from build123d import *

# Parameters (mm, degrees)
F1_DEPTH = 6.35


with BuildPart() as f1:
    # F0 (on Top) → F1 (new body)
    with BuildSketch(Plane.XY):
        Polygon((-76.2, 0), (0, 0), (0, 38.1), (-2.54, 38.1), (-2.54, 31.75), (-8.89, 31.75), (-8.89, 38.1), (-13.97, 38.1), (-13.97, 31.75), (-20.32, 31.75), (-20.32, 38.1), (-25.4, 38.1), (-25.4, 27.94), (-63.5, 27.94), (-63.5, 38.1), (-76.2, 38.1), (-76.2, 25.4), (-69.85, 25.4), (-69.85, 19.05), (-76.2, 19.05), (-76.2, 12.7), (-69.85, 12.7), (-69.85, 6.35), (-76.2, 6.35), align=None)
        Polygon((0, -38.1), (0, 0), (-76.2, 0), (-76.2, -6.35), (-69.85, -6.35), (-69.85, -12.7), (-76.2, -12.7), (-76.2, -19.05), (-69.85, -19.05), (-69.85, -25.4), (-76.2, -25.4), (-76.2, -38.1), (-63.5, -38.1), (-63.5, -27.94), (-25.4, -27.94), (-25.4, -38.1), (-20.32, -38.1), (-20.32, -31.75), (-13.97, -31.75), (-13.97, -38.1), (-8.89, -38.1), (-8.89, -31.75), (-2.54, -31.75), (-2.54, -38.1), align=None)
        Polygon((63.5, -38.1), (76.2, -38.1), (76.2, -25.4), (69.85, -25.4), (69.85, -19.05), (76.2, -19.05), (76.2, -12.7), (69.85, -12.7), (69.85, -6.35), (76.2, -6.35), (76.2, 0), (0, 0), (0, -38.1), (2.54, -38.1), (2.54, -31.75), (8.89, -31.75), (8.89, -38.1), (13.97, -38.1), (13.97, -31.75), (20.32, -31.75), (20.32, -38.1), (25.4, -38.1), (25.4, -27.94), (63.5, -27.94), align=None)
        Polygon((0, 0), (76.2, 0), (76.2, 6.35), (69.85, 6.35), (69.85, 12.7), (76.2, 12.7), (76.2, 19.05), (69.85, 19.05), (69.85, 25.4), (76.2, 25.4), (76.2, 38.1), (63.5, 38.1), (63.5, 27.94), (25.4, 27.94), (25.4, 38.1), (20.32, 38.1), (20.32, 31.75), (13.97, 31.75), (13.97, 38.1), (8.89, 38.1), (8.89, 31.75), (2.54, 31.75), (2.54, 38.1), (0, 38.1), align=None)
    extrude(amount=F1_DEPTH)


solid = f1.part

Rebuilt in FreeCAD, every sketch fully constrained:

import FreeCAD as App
import Part
import Sketcher
from FreeCAD import Vector
Q = App.Units.Quantity

doc = App.newDocument("Part")
body = doc.addObject("PartDesign::Body", "Body")

# Sketch on XY plane
sketch1 = doc.addObject("Sketcher::SketchObject", "Sketch")
body.addObject(sketch1)
sketch1.AttachmentSupport = (doc.XY_Plane, [""])
sketch1.MapMode = "FlatFace"
sketch1.addGeometry(Part.LineSegment(Vector(-3, 38, 0), Vector(-3, 32, 0)), False)
sketch1.addGeometry(Part.LineSegment(Vector(-3, 32, 0), Vector(-9, 32, 0)), False)
sketch1.addGeometry(Part.LineSegment(Vector(-9, 32, 0), Vector(-9, 38, 0)), False)
sketch1.addGeometry(Part.LineSegment(Vector(-9, 38, 0), Vector(-14, 38, 0)), False)
sketch1.addGeometry(Part.LineSegment(Vector(-14, 38, 0), Vector(-14, 32, 0)), False)
sketch1.addGeometry(Part.LineSegment(Vector(-14, 32, 0), Vector(-20, 32, 0)), False)
sketch1.addGeometry(Part.LineSegment(Vector(-20, 32, 0), Vector(-20, 38, 0)), False)
sketch1.addGeometry(Part.LineSegment(Vector(-20, 38, 0), Vector(-25, 38, 0)), False)
sketch1.addGeometry(Part.LineSegment(Vector(-25, 38, 0), Vector(-25, 28, 0)), False)
sketch1.addGeometry(Part.LineSegment(Vector(-25, 28, 0), Vector(-64, 28, 0)), False)
sketch1.addGeometry(Part.LineSegment(Vector(-64, 28, 0), Vector(-64, 38, 0)), False)
sketch1.addGeometry(Part.LineSegment(Vector(-64, 38, 0), Vector(-76, 38, 0)), False)
sketch1.addGeometry(Part.LineSegment(Vector(-76, 38, 0), Vector(-76, 25, 0)), False)
sketch1.addGeometry(Part.LineSegment(Vector(-76, 25, 0), Vector(-70, 25, 0)), False)
sketch1.addGeometry(Part.LineSegment(Vector(-70, 25, 0), Vector(-70, 19, 0)), False)
sketch1.addGeometry(Part.LineSegment(Vector(-70, 19, 0), Vector(-76, 19, 0)), False)
sketch1.addGeometry(Part.LineSegment(Vector(-76, 19, 0), Vector(-76, 13, 0)), False)
sketch1.addGeometry(Part.LineSegment(Vector(-76, 13, 0), Vector(-70, 13, 0)), False)
sketch1.addGeometry(Part.LineSegment(Vector(-70, 13, 0), Vector(-70, 6, 0)), False)
sketch1.addGeometry(Part.LineSegment(Vector(-70, 6, 0), Vector(-76, 6, 0)), False)
sketch1.addGeometry(Part.LineSegment(Vector(-76, 6, 0), Vector(-76, -6, 0)), False)
sketch1.addGeometry(Part.LineSegment(Vector(-76, -6, 0), Vector(-70, -6, 0)), False)
sketch1.addGeometry(Part.LineSegment(Vector(-70, -6, 0), Vector(-70, -13, 0)), False)
sketch1.addGeometry(Part.LineSegment(Vector(-70, -13, 0), Vector(-76, -13, 0)), False)
sketch1.addGeometry(Part.LineSegment(Vector(-76, -13, 0), Vector(-76, -19, 0)), False)
sketch1.addGeometry(Part.LineSegment(Vector(-76, -19, 0), Vector(-70, -19, 0)), False)
sketch1.addGeometry(Part.LineSegment(Vector(-70, -19, 0), Vector(-70, -25, 0)), False)
sketch1.addGeometry(Part.LineSegment(Vector(-70, -25, 0), Vector(-76, -25, 0)), False)
sketch1.addGeometry(Part.LineSegment(Vector(-76, -25, 0), Vector(-76, -38, 0)), False)
sketch1.addGeometry(Part.LineSegment(Vector(-76, -38, 0), Vector(-64, -38, 0)), False)
sketch1.addGeometry(Part.LineSegment(Vector(-64, -38, 0), Vector(-64, -28, 0)), False)
sketch1.addGeometry(Part.LineSegment(Vector(-64, -28, 0), Vector(-25, -28, 0)), False)
sketch1.addGeometry(Part.LineSegment(Vector(-25, -28, 0), Vector(-25, -38, 0)), False)
sketch1.addGeometry(Part.LineSegment(Vector(-25, -38, 0), Vector(-20, -38, 0)), False)
sketch1.addGeometry(Part.LineSegment(Vector(-20, -38, 0), Vector(-20, -32, 0)), False)
sketch1.addGeometry(Part.LineSegment(Vector(-20, -32, 0), Vector(-14, -32, 0)), False)
sketch1.addGeometry(Part.LineSegment(Vector(-14, -32, 0), Vector(-14, -38, 0)), False)
sketch1.addGeometry(Part.LineSegment(Vector(-14, -38, 0), Vector(-9, -38, 0)), False)
sketch1.addGeometry(Part.LineSegment(Vector(-9, -38, 0), Vector(-9, -32, 0)), False)
sketch1.addGeometry(Part.LineSegment(Vector(-9, -32, 0), Vector(-3, -32, 0)), False)
sketch1.addGeometry(Part.LineSegment(Vector(-3, -32, 0), Vector(-3, -38, 0)), False)
sketch1.addGeometry(Part.LineSegment(Vector(-3, -38, 0), Vector(3, -38, 0)), False)
sketch1.addGeometry(Part.LineSegment(Vector(3, -38, 0), Vector(3, -32, 0)), False)
sketch1.addGeometry(Part.LineSegment(Vector(3, -32, 0), Vector(9, -32, 0)), False)
sketch1.addGeometry(Part.LineSegment(Vector(9, -32, 0), Vector(9, -38, 0)), False)
sketch1.addGeometry(Part.LineSegment(Vector(9, -38, 0), Vector(14, -38, 0)), False)
sketch1.addGeometry(Part.LineSegment(Vector(14, -38, 0), Vector(14, -32, 0)), False)
sketch1.addGeometry(Part.LineSegment(Vector(14, -32, 0), Vector(20, -32, 0)), False)
sketch1.addGeometry(Part.LineSegment(Vector(20, -32, 0), Vector(20, -38, 0)), False)
sketch1.addGeometry(Part.LineSegment(Vector(20, -38, 0), Vector(25, -38, 0)), False)
sketch1.addGeometry(Part.LineSegment(Vector(25, -38, 0), Vector(25, -28, 0)), False)
sketch1.addGeometry(Part.LineSegment(Vector(25, -28, 0), Vector(64, -28, 0)), False)
sketch1.addGeometry(Part.LineSegment(Vector(64, -28, 0), Vector(64, -38, 0)), False)
sketch1.addGeometry(Part.LineSegment(Vector(64, -38, 0), Vector(76, -38, 0)), False)
sketch1.addGeometry(Part.LineSegment(Vector(76, -38, 0), Vector(76, -25, 0)), False)
sketch1.addGeometry(Part.LineSegment(Vector(76, -25, 0), Vector(70, -25, 0)), False)
sketch1.addGeometry(Part.LineSegment(Vector(70, -25, 0), Vector(70, -19, 0)), False)
sketch1.addGeometry(Part.LineSegment(Vector(70, -19, 0), Vector(76, -19, 0)), False)
sketch1.addGeometry(Part.LineSegment(Vector(76, -19, 0), Vector(76, -13, 0)), False)
sketch1.addGeometry(Part.LineSegment(Vector(76, -13, 0), Vector(70, -13, 0)), False)
sketch1.addGeometry(Part.LineSegment(Vector(70, -13, 0), Vector(70, -6, 0)), False)
sketch1.addGeometry(Part.LineSegment(Vector(70, -6, 0), Vector(76, -6, 0)), False)
sketch1.addGeometry(Part.LineSegment(Vector(76, -6, 0), Vector(76, 6, 0)), False)
sketch1.addGeometry(Part.LineSegment(Vector(76, 6, 0), Vector(70, 6, 0)), False)
sketch1.addGeometry(Part.LineSegment(Vector(70, 6, 0), Vector(70, 13, 0)), False)
sketch1.addGeometry(Part.LineSegment(Vector(70, 13, 0), Vector(76, 13, 0)), False)
sketch1.addGeometry(Part.LineSegment(Vector(76, 13, 0), Vector(76, 19, 0)), False)
sketch1.addGeometry(Part.LineSegment(Vector(76, 19, 0), Vector(70, 19, 0)), False)
sketch1.addGeometry(Part.LineSegment(Vector(70, 19, 0), Vector(70, 25, 0)), False)
sketch1.addGeometry(Part.LineSegment(Vector(70, 25, 0), Vector(76, 25, 0)), False)
sketch1.addGeometry(Part.LineSegment(Vector(76, 25, 0), Vector(76, 38, 0)), False)
sketch1.addGeometry(Part.LineSegment(Vector(76, 38, 0), Vector(64, 38, 0)), False)
sketch1.addGeometry(Part.LineSegment(Vector(64, 38, 0), Vector(64, 28, 0)), False)
sketch1.addGeometry(Part.LineSegment(Vector(64, 28, 0), Vector(25, 28, 0)), False)
sketch1.addGeometry(Part.LineSegment(Vector(25, 28, 0), Vector(25, 38, 0)), False)
sketch1.addGeometry(Part.LineSegment(Vector(25, 38, 0), Vector(20, 38, 0)), False)
sketch1.addGeometry(Part.LineSegment(Vector(20, 38, 0), Vector(20, 32, 0)), False)
sketch1.addGeometry(Part.LineSegment(Vector(20, 32, 0), Vector(14, 32, 0)), False)
sketch1.addGeometry(Part.LineSegment(Vector(14, 32, 0), Vector(14, 38, 0)), False)
sketch1.addGeometry(Part.LineSegment(Vector(14, 38, 0), Vector(9, 38, 0)), False)
sketch1.addGeometry(Part.LineSegment(Vector(9, 38, 0), Vector(9, 32, 0)), False)
sketch1.addGeometry(Part.LineSegment(Vector(9, 32, 0), Vector(3, 32, 0)), False)
sketch1.addGeometry(Part.LineSegment(Vector(3, 32, 0), Vector(3, 38, 0)), False)
sketch1.addGeometry(Part.LineSegment(Vector(3, 38, 0), Vector(-3, 38, 0)), False)
sketch1.addConstraint(Sketcher.Constraint("Coincident", 0, 2, 1, 1))
sketch1.addConstraint(Sketcher.Constraint("Coincident", 1, 2, 2, 1))
sketch1.addConstraint(Sketcher.Constraint("Coincident", 2, 2, 3, 1))
sketch1.addConstraint(Sketcher.Constraint("Coincident", 3, 2, 4, 1))
sketch1.addConstraint(Sketcher.Constraint("Coincident", 4, 2, 5, 1))
sketch1.addConstraint(Sketcher.Constraint("Coincident", 5, 2, 6, 1))
sketch1.addConstraint(Sketcher.Constraint("Coincident", 6, 2, 7, 1))
sketch1.addConstraint(Sketcher.Constraint("Coincident", 7, 2, 8, 1))
sketch1.addConstraint(Sketcher.Constraint("Coincident", 8, 2, 9, 1))
sketch1.addConstraint(Sketcher.Constraint("Coincident", 9, 2, 10, 1))
sketch1.addConstraint(Sketcher.Constraint("Coincident", 10, 2, 11, 1))
sketch1.addConstraint(Sketcher.Constraint("Coincident", 11, 2, 12, 1))
sketch1.addConstraint(Sketcher.Constraint("Coincident", 12, 2, 13, 1))
sketch1.addConstraint(Sketcher.Constraint("Coincident", 13, 2, 14, 1))
sketch1.addConstraint(Sketcher.Constraint("Coincident", 14, 2, 15, 1))
sketch1.addConstraint(Sketcher.Constraint("Coincident", 15, 2, 16, 1))
sketch1.addConstraint(Sketcher.Constraint("Coincident", 16, 2, 17, 1))
sketch1.addConstraint(Sketcher.Constraint("Coincident", 17, 2, 18, 1))
sketch1.addConstraint(Sketcher.Constraint("Coincident", 18, 2, 19, 1))
sketch1.addConstraint(Sketcher.Constraint("Coincident", 19, 2, 20, 1))
sketch1.addConstraint(Sketcher.Constraint("Coincident", 20, 2, 21, 1))
sketch1.addConstraint(Sketcher.Constraint("Coincident", 21, 2, 22, 1))
sketch1.addConstraint(Sketcher.Constraint("Coincident", 22, 2, 23, 1))
sketch1.addConstraint(Sketcher.Constraint("Coincident", 23, 2, 24, 1))
sketch1.addConstraint(Sketcher.Constraint("Coincident", 24, 2, 25, 1))
sketch1.addConstraint(Sketcher.Constraint("Coincident", 25, 2, 26, 1))
sketch1.addConstraint(Sketcher.Constraint("Coincident", 26, 2, 27, 1))
sketch1.addConstraint(Sketcher.Constraint("Coincident", 27, 2, 28, 1))
sketch1.addConstraint(Sketcher.Constraint("Coincident", 28, 2, 29, 1))
sketch1.addConstraint(Sketcher.Constraint("Coincident", 29, 2, 30, 1))
sketch1.addConstraint(Sketcher.Constraint("Coincident", 30, 2, 31, 1))
sketch1.addConstraint(Sketcher.Constraint("Coincident", 31, 2, 32, 1))
sketch1.addConstraint(Sketcher.Constraint("Coincident", 32, 2, 33, 1))
sketch1.addConstraint(Sketcher.Constraint("Coincident", 33, 2, 34, 1))
sketch1.addConstraint(Sketcher.Constraint("Coincident", 34, 2, 35, 1))
sketch1.addConstraint(Sketcher.Constraint("Coincident", 35, 2, 36, 1))
sketch1.addConstraint(Sketcher.Constraint("Coincident", 36, 2, 37, 1))
sketch1.addConstraint(Sketcher.Constraint("Coincident", 37, 2, 38, 1))
sketch1.addConstraint(Sketcher.Constraint("Coincident", 38, 2, 39, 1))
sketch1.addConstraint(Sketcher.Constraint("Coincident", 39, 2, 40, 1))
sketch1.addConstraint(Sketcher.Constraint("Coincident", 40, 2, 41, 1))
sketch1.addConstraint(Sketcher.Constraint("Coincident", 41, 2, 42, 1))
sketch1.addConstraint(Sketcher.Constraint("Coincident", 42, 2, 43, 1))
sketch1.addConstraint(Sketcher.Constraint("Coincident", 43, 2, 44, 1))
sketch1.addConstraint(Sketcher.Constraint("Coincident", 44, 2, 45, 1))
sketch1.addConstraint(Sketcher.Constraint("Coincident", 45, 2, 46, 1))
sketch1.addConstraint(Sketcher.Constraint("Coincident", 46, 2, 47, 1))
sketch1.addConstraint(Sketcher.Constraint("Coincident", 47, 2, 48, 1))
sketch1.addConstraint(Sketcher.Constraint("Coincident", 48, 2, 49, 1))
sketch1.addConstraint(Sketcher.Constraint("Coincident", 49, 2, 50, 1))
sketch1.addConstraint(Sketcher.Constraint("Coincident", 50, 2, 51, 1))
sketch1.addConstraint(Sketcher.Constraint("Coincident", 51, 2, 52, 1))
sketch1.addConstraint(Sketcher.Constraint("Coincident", 52, 2, 53, 1))
sketch1.addConstraint(Sketcher.Constraint("Coincident", 53, 2, 54, 1))
sketch1.addConstraint(Sketcher.Constraint("Coincident", 54, 2, 55, 1))
sketch1.addConstraint(Sketcher.Constraint("Coincident", 55, 2, 56, 1))
sketch1.addConstraint(Sketcher.Constraint("Coincident", 56, 2, 57, 1))
sketch1.addConstraint(Sketcher.Constraint("Coincident", 57, 2, 58, 1))
sketch1.addConstraint(Sketcher.Constraint("Coincident", 58, 2, 59, 1))
sketch1.addConstraint(Sketcher.Constraint("Coincident", 59, 2, 60, 1))
sketch1.addConstraint(Sketcher.Constraint("Coincident", 60, 2, 61, 1))
sketch1.addConstraint(Sketcher.Constraint("Coincident", 61, 2, 62, 1))
sketch1.addConstraint(Sketcher.Constraint("Coincident", 62, 2, 63, 1))
sketch1.addConstraint(Sketcher.Constraint("Coincident", 63, 2, 64, 1))
sketch1.addConstraint(Sketcher.Constraint("Coincident", 64, 2, 65, 1))
sketch1.addConstraint(Sketcher.Constraint("Coincident", 65, 2, 66, 1))
sketch1.addConstraint(Sketcher.Constraint("Coincident", 66, 2, 67, 1))
sketch1.addConstraint(Sketcher.Constraint("Coincident", 67, 2, 68, 1))
sketch1.addConstraint(Sketcher.Constraint("Coincident", 68, 2, 69, 1))
sketch1.addConstraint(Sketcher.Constraint("Coincident", 69, 2, 70, 1))
sketch1.addConstraint(Sketcher.Constraint("Coincident", 70, 2, 71, 1))
sketch1.addConstraint(Sketcher.Constraint("Coincident", 71, 2, 72, 1))
sketch1.addConstraint(Sketcher.Constraint("Coincident", 72, 2, 73, 1))
sketch1.addConstraint(Sketcher.Constraint("Coincident", 73, 2, 74, 1))
sketch1.addConstraint(Sketcher.Constraint("Coincident", 74, 2, 75, 1))
sketch1.addConstraint(Sketcher.Constraint("Coincident", 75, 2, 76, 1))
sketch1.addConstraint(Sketcher.Constraint("Coincident", 76, 2, 77, 1))
sketch1.addConstraint(Sketcher.Constraint("Coincident", 77, 2, 78, 1))
sketch1.addConstraint(Sketcher.Constraint("Coincident", 78, 2, 79, 1))
sketch1.addConstraint(Sketcher.Constraint("Coincident", 79, 2, 80, 1))
sketch1.addConstraint(Sketcher.Constraint("Coincident", 80, 2, 81, 1))
sketch1.addConstraint(Sketcher.Constraint("Coincident", 81, 2, 82, 1))
sketch1.addConstraint(Sketcher.Constraint("Coincident", 82, 2, 83, 1))
sketch1.addConstraint(Sketcher.Constraint("Coincident", 83, 2, 0, 1))
sketch1.addConstraint(Sketcher.Constraint("Vertical", 0))
sketch1.addConstraint(Sketcher.Constraint("Horizontal", 1))
sketch1.addConstraint(Sketcher.Constraint("Vertical", 2))
sketch1.addConstraint(Sketcher.Constraint("Horizontal", 3))
sketch1.addConstraint(Sketcher.Constraint("Vertical", 4))
sketch1.addConstraint(Sketcher.Constraint("Horizontal", 5))
sketch1.addConstraint(Sketcher.Constraint("Vertical", 6))
sketch1.addConstraint(Sketcher.Constraint("Horizontal", 7))
sketch1.addConstraint(Sketcher.Constraint("Vertical", 8))
sketch1.addConstraint(Sketcher.Constraint("Horizontal", 9))
sketch1.addConstraint(Sketcher.Constraint("Vertical", 10))
sketch1.addConstraint(Sketcher.Constraint("Horizontal", 11))
sketch1.addConstraint(Sketcher.Constraint("Vertical", 12))
sketch1.addConstraint(Sketcher.Constraint("Horizontal", 13))
sketch1.addConstraint(Sketcher.Constraint("Vertical", 14))
sketch1.addConstraint(Sketcher.Constraint("Horizontal", 15))
sketch1.addConstraint(Sketcher.Constraint("Vertical", 16))
sketch1.addConstraint(Sketcher.Constraint("Horizontal", 17))
sketch1.addConstraint(Sketcher.Constraint("Vertical", 18))
sketch1.addConstraint(Sketcher.Constraint("Horizontal", 19))
sketch1.addConstraint(Sketcher.Constraint("Vertical", 20))
sketch1.addConstraint(Sketcher.Constraint("Horizontal", 21))
sketch1.addConstraint(Sketcher.Constraint("Vertical", 22))
sketch1.addConstraint(Sketcher.Constraint("Horizontal", 23))
sketch1.addConstraint(Sketcher.Constraint("Vertical", 24))
sketch1.addConstraint(Sketcher.Constraint("Horizontal", 25))
sketch1.addConstraint(Sketcher.Constraint("Vertical", 26))
sketch1.addConstraint(Sketcher.Constraint("Horizontal", 27))
sketch1.addConstraint(Sketcher.Constraint("Vertical", 28))
sketch1.addConstraint(Sketcher.Constraint("Horizontal", 29))
sketch1.addConstraint(Sketcher.Constraint("Vertical", 30))
sketch1.addConstraint(Sketcher.Constraint("Horizontal", 31))
sketch1.addConstraint(Sketcher.Constraint("Vertical", 32))
sketch1.addConstraint(Sketcher.Constraint("Horizontal", 33))
sketch1.addConstraint(Sketcher.Constraint("Vertical", 34))
sketch1.addConstraint(Sketcher.Constraint("Horizontal", 35))
sketch1.addConstraint(Sketcher.Constraint("Vertical", 36))
sketch1.addConstraint(Sketcher.Constraint("Horizontal", 37))
sketch1.addConstraint(Sketcher.Constraint("Vertical", 38))
sketch1.addConstraint(Sketcher.Constraint("Horizontal", 39))
sketch1.addConstraint(Sketcher.Constraint("Vertical", 40))
sketch1.addConstraint(Sketcher.Constraint("Horizontal", 41))
sketch1.addConstraint(Sketcher.Constraint("Vertical", 42))
sketch1.addConstraint(Sketcher.Constraint("Horizontal", 43))
sketch1.addConstraint(Sketcher.Constraint("Vertical", 44))
sketch1.addConstraint(Sketcher.Constraint("Horizontal", 45))
sketch1.addConstraint(Sketcher.Constraint("Vertical", 46))
sketch1.addConstraint(Sketcher.Constraint("Horizontal", 47))
sketch1.addConstraint(Sketcher.Constraint("Vertical", 48))
sketch1.addConstraint(Sketcher.Constraint("Horizontal", 49))
sketch1.addConstraint(Sketcher.Constraint("Vertical", 50))
sketch1.addConstraint(Sketcher.Constraint("Horizontal", 51))
sketch1.addConstraint(Sketcher.Constraint("Vertical", 52))
sketch1.addConstraint(Sketcher.Constraint("Horizontal", 53))
sketch1.addConstraint(Sketcher.Constraint("Vertical", 54))
sketch1.addConstraint(Sketcher.Constraint("Horizontal", 55))
sketch1.addConstraint(Sketcher.Constraint("Vertical", 56))
sketch1.addConstraint(Sketcher.Constraint("Horizontal", 57))
sketch1.addConstraint(Sketcher.Constraint("Vertical", 58))
sketch1.addConstraint(Sketcher.Constraint("Horizontal", 59))
sketch1.addConstraint(Sketcher.Constraint("Vertical", 60))
sketch1.addConstraint(Sketcher.Constraint("Horizontal", 61))
sketch1.addConstraint(Sketcher.Constraint("Vertical", 62))
sketch1.addConstraint(Sketcher.Constraint("Horizontal", 63))
sketch1.addConstraint(Sketcher.Constraint("Vertical", 64))
sketch1.addConstraint(Sketcher.Constraint("Horizontal", 65))
sketch1.addConstraint(Sketcher.Constraint("Vertical", 66))
sketch1.addConstraint(Sketcher.Constraint("Horizontal", 67))
sketch1.addConstraint(Sketcher.Constraint("Vertical", 68))
sketch1.addConstraint(Sketcher.Constraint("Horizontal", 69))
sketch1.addConstraint(Sketcher.Constraint("Vertical", 70))
sketch1.addConstraint(Sketcher.Constraint("Horizontal", 71))
sketch1.addConstraint(Sketcher.Constraint("Vertical", 72))
sketch1.addConstraint(Sketcher.Constraint("Horizontal", 73))
sketch1.addConstraint(Sketcher.Constraint("Vertical", 74))
sketch1.addConstraint(Sketcher.Constraint("Horizontal", 75))
sketch1.addConstraint(Sketcher.Constraint("Vertical", 76))
sketch1.addConstraint(Sketcher.Constraint("Horizontal", 77))
sketch1.addConstraint(Sketcher.Constraint("Vertical", 78))
sketch1.addConstraint(Sketcher.Constraint("Horizontal", 79))
sketch1.addConstraint(Sketcher.Constraint("Vertical", 80))
sketch1.addConstraint(Sketcher.Constraint("Horizontal", 81))
sketch1.addConstraint(Sketcher.Constraint("Vertical", 82))
sketch1.addConstraint(Sketcher.Constraint("Horizontal", 83))
sketch1.addConstraint(Sketcher.Constraint("Symmetric", 0, 2, 42, 2, -1, 1))
sketch1.addConstraint(Sketcher.Constraint("Symmetric", 2, 2, 44, 2, -1, 1))
sketch1.addConstraint(Sketcher.Constraint("Symmetric", 4, 2, 46, 2, -1, 1))
sketch1.addConstraint(Sketcher.Constraint("Symmetric", 6, 2, 48, 2, -1, 1))
sketch1.addConstraint(Sketcher.Constraint("Symmetric", 8, 2, 50, 2, -1, 1))
sketch1.addConstraint(Sketcher.Constraint("Symmetric", 10, 2, 52, 2, -1, 1))
sketch1.addConstraint(Sketcher.Constraint("Symmetric", 12, 2, 54, 2, -1, 1))
sketch1.addConstraint(Sketcher.Constraint("Symmetric", 14, 2, 56, 2, -1, 1))
sketch1.addConstraint(Sketcher.Constraint("Symmetric", 16, 2, 58, 2, -1, 1))
sketch1.addConstraint(Sketcher.Constraint("Symmetric", 18, 2, 60, 2, -1, 1))
sketch1.addConstraint(Sketcher.Constraint("Symmetric", 20, 2, 62, 2, -1, 1))
sketch1.addConstraint(Sketcher.Constraint("Symmetric", 22, 2, 64, 2, -1, 1))
sketch1.addConstraint(Sketcher.Constraint("Symmetric", 24, 2, 66, 2, -1, 1))
sketch1.addConstraint(Sketcher.Constraint("Symmetric", 26, 2, 68, 2, -1, 1))
sketch1.addConstraint(Sketcher.Constraint("Symmetric", 28, 2, 70, 2, -1, 1))
sketch1.addConstraint(Sketcher.Constraint("Symmetric", 30, 2, 72, 2, -1, 1))
sketch1.addConstraint(Sketcher.Constraint("Symmetric", 32, 2, 74, 2, -1, 1))
sketch1.addConstraint(Sketcher.Constraint("Symmetric", 34, 2, 76, 2, -1, 1))
sketch1.addConstraint(Sketcher.Constraint("Symmetric", 36, 2, 78, 2, -1, 1))
sketch1.addConstraint(Sketcher.Constraint("Symmetric", 38, 2, 80, 2, -1, 1))
sketch1.addConstraint(Sketcher.Constraint("Symmetric", 40, 2, 82, 2, -1, 1))
sketch1.addConstraint(Sketcher.Constraint("Symmetric", 39, 2, 42, 2, -2))
sketch1.addConstraint(Sketcher.Constraint("Symmetric", 37, 2, 44, 2, -2))
sketch1.addConstraint(Sketcher.Constraint("Symmetric", 35, 2, 46, 2, -2))
sketch1.addConstraint(Sketcher.Constraint("Symmetric", 33, 2, 48, 2, -2))
sketch1.addConstraint(Sketcher.Constraint("Symmetric", 31, 2, 50, 2, -2))
sketch1.addConstraint(Sketcher.Constraint("Symmetric", 29, 2, 52, 2, -2))
sketch1.addConstraint(Sketcher.Constraint("Symmetric", 27, 2, 54, 2, -2))
sketch1.addConstraint(Sketcher.Constraint("Symmetric", 25, 2, 56, 2, -2))
sketch1.addConstraint(Sketcher.Constraint("Symmetric", 23, 2, 58, 2, -2))
sketch1.addConstraint(Sketcher.Constraint("Symmetric", 21, 2, 60, 2, -2))
sketch1.addConstraint(Sketcher.Constraint("Horizontal", 1, 2, 4, 2))
sketch1.addConstraint(Sketcher.Constraint("Horizontal", 3, 2, 6, 2))
sketch1.addConstraint(Sketcher.Constraint("Horizontal", 7, 2, 10, 2))
sketch1.addConstraint(Sketcher.Constraint("Horizontal", 37, 2, 40, 2))
sketch1.addConstraint(Sketcher.Constraint("Vertical", 12, 2, 15, 2))
sketch1.addConstraint(Sketcher.Constraint("Vertical", 14, 2, 17, 2))
sketch1.addConstraint(Sketcher.Constraint("Vertical", 16, 2, 19, 2))
sketch1.addConstraint(Sketcher.Constraint("Equal", 1, 5))
sketch1.addConstraint(Sketcher.Constraint("Equal", 3, 7))
sketch1.addConstraint(Sketcher.Constraint("Equal", 5, 13))
sketch1.addConstraint(Sketcher.Constraint("Equal", 37, 41))
sketch1.addConstraint(Sketcher.Constraint("Equal", 81, 0))
sketch1.addConstraint(Sketcher.Constraint("Equal", 71, 12))
sketch1.addConstraint(Sketcher.Constraint("Equal", 6, 14))
sketch1.addConstraint(Sketcher.Constraint("Equal", 14, 16))
sketch1.addConstraint(Sketcher.Constraint("Equal", 16, 18))
sketch1.addConstraint(Sketcher.Constraint("Equal", 12, 20))
sketch1.addConstraint(Sketcher.Constraint("DistanceX", 3, 2, 3, 1, Q("0.2 in")))
sketch1.addConstraint(Sketcher.Constraint("DistanceX", 9, 2, 9, 1, Q("1.5 in")))
sketch1.addConstraint(Sketcher.Constraint("DistanceX", 11, 2, 11, 1, Q("0.5 in")))
sketch1.addConstraint(Sketcher.Constraint("DistanceY", 8, 2, 8, 1, Q("0.4 in")))
sketch1.addConstraint(Sketcher.Constraint("DistanceX", 7, 2, -1, 1, Q("1 in")))
pad1 = doc.addObject("PartDesign::Pad", "Pad")
body.addObject(pad1)
pad1.Profile = sketch1
pad1.Length = Q("0.25 in")

doc.recompute()
